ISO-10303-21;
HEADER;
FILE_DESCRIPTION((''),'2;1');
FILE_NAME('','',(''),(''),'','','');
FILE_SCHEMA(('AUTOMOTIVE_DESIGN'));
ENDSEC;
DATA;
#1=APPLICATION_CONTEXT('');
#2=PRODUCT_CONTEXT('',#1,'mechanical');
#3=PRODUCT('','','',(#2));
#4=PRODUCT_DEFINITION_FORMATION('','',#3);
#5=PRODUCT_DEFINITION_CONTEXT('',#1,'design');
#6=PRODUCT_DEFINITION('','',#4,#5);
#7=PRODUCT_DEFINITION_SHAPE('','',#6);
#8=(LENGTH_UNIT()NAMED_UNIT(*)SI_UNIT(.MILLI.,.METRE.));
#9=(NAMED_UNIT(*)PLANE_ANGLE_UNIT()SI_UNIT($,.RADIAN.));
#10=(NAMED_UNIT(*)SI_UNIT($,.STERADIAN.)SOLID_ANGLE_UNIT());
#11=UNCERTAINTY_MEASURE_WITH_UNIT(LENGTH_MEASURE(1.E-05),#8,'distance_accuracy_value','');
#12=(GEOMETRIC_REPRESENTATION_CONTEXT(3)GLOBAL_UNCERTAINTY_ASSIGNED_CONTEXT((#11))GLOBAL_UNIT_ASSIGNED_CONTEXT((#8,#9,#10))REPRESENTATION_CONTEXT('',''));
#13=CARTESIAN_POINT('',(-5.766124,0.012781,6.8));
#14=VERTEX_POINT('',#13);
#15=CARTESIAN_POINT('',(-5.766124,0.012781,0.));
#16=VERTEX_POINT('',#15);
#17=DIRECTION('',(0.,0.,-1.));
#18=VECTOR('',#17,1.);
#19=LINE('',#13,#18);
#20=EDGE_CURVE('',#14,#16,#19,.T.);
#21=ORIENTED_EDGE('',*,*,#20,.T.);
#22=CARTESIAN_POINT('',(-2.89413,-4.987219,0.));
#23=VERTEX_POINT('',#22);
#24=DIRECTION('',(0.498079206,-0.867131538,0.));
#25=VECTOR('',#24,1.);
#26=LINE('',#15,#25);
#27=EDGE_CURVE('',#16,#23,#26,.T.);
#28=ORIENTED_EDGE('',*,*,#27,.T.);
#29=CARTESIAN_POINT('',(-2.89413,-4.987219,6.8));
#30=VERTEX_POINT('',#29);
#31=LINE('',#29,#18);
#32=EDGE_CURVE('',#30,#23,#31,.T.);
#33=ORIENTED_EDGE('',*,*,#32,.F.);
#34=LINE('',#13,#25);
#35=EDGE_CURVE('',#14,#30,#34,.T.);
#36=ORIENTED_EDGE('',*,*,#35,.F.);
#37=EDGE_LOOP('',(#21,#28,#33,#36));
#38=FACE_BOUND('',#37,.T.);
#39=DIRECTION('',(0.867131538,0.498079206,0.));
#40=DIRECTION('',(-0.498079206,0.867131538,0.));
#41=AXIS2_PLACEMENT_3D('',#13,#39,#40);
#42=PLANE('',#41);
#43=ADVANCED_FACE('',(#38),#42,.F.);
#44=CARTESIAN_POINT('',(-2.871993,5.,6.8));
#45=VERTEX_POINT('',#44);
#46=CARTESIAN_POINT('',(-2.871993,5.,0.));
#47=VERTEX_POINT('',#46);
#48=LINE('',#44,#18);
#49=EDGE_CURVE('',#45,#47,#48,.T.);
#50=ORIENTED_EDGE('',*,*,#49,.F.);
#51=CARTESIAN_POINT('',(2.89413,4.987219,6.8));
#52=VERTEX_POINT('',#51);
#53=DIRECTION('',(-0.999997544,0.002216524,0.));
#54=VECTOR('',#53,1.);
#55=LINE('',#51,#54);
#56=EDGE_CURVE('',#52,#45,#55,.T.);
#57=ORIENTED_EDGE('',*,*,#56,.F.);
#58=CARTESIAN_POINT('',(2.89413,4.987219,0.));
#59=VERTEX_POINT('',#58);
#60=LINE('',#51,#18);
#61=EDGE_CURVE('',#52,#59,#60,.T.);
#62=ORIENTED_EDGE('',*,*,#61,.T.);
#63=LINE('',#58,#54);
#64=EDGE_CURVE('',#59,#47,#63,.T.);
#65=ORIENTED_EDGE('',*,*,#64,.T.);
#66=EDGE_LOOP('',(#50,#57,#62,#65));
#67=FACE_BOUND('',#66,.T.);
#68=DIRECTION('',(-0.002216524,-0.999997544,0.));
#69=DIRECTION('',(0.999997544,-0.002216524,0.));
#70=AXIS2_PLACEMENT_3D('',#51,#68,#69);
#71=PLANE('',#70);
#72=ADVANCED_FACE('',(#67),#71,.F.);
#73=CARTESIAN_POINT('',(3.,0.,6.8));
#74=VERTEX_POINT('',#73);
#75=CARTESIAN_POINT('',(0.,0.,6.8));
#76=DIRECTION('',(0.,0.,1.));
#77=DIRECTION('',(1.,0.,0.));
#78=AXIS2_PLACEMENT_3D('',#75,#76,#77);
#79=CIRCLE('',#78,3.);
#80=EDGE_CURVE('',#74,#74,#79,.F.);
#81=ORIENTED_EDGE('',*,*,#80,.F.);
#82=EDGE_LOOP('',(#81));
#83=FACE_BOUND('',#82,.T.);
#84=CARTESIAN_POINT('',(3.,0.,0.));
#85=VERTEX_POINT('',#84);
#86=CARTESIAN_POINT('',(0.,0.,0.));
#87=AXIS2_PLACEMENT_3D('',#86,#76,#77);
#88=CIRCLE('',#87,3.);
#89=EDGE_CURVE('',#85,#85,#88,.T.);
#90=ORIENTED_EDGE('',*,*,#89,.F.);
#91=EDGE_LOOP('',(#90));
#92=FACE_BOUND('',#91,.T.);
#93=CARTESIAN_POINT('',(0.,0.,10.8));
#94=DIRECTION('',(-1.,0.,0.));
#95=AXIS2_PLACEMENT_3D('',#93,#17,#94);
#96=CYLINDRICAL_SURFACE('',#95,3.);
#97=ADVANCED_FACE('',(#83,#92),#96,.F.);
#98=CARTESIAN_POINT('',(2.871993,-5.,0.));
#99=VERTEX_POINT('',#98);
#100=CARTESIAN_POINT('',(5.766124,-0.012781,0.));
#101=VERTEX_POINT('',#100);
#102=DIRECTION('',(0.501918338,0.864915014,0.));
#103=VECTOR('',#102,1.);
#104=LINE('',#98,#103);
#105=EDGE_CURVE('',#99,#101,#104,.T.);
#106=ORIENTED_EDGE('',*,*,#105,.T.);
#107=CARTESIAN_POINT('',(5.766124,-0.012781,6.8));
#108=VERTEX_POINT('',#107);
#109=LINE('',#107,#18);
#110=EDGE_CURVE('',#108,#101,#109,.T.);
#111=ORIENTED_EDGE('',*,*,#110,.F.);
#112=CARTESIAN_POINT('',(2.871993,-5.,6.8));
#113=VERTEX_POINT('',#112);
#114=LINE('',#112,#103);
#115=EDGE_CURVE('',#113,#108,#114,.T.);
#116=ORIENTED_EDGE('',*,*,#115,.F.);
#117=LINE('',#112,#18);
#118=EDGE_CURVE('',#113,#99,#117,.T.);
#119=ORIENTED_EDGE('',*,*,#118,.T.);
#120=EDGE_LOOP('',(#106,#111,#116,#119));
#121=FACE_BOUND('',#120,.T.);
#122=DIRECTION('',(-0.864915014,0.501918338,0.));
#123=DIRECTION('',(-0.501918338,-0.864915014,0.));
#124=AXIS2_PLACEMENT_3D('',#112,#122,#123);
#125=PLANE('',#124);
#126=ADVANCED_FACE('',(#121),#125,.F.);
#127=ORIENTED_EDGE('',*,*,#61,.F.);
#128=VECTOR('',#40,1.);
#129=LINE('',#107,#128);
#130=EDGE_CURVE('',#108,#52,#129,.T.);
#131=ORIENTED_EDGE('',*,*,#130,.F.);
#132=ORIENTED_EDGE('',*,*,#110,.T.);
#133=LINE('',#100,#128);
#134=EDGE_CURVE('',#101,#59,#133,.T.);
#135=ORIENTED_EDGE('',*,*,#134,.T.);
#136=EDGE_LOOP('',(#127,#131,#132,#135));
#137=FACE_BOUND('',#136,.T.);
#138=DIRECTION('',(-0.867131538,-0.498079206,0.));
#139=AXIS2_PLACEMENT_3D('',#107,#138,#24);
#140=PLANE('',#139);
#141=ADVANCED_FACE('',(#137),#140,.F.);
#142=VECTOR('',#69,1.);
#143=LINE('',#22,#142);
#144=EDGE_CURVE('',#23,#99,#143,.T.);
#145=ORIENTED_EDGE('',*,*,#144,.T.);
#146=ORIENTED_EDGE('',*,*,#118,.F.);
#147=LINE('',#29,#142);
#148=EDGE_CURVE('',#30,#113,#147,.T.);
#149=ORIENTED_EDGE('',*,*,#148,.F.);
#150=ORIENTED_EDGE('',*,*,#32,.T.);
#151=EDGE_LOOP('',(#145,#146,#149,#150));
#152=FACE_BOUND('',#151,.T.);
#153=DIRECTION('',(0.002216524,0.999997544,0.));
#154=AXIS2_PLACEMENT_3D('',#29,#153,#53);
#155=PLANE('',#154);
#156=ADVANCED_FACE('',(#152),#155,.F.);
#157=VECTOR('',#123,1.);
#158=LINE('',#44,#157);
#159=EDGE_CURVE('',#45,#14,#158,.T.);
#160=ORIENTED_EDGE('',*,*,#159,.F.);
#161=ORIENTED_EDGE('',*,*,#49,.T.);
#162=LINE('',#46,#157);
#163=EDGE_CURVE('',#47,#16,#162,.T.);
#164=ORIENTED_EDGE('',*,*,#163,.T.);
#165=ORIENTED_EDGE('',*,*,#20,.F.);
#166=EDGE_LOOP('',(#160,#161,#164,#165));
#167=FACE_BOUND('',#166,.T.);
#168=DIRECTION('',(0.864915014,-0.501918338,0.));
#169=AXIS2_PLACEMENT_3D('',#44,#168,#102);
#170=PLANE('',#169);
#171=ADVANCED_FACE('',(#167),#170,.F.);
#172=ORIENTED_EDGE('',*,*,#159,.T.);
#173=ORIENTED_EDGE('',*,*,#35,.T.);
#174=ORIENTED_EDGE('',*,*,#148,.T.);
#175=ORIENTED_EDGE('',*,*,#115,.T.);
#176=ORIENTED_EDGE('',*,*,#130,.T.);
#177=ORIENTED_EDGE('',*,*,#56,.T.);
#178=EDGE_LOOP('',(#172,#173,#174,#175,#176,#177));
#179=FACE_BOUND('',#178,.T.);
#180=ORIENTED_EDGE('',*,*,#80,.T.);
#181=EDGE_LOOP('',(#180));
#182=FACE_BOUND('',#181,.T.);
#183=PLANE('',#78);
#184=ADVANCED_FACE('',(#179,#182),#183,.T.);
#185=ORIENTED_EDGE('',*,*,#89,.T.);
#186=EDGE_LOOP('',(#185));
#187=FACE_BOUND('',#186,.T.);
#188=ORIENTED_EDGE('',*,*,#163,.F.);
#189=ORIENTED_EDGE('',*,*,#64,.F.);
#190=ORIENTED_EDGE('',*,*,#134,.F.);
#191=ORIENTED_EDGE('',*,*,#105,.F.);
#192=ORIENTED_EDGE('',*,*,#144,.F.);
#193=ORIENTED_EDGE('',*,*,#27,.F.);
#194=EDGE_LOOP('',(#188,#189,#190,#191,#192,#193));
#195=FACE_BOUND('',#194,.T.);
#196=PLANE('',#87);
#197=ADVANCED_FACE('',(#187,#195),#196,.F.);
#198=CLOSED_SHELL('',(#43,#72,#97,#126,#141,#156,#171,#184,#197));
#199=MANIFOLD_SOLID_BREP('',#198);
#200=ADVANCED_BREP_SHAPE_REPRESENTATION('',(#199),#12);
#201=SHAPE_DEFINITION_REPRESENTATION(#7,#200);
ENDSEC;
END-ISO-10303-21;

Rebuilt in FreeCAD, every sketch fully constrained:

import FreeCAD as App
import Part
import Sketcher
from FreeCAD import Vector


def add_polygon(sketch, points):
    """Adds a closed chain of lines whose ends are joined by coincident constraints."""
    first, n = sketch.GeometryCount, len(points)
    for a, b in zip(points, points[1:] + points[:1]):
        sketch.addGeometry(Part.LineSegment(App.Vector(*a, 0), App.Vector(*b, 0)), False)
    for i in range(n):
        sketch.addConstraint(Sketcher.Constraint("Coincident", first + i, 2, first + (i + 1) % n, 1))

doc = App.newDocument("Part")
body = doc.addObject("PartDesign::Body", "Body")

# Sketch on XY plane
sketch1 = doc.addObject("Sketcher::SketchObject", "Sketch")
body.addObject(sketch1)
sketch1.AttachmentSupport = (doc.XY_Plane, [""])
sketch1.MapMode = "FlatFace"
add_polygon(sketch1, [(-2.871993, 5), (-5.766124, 0.012781), (-2.89413, -4.987219), (2.871993, -5), (5.766124, -0.012781), (2.89413, 4.987219)])  # lines 0-5
sketch1.addConstraint([
    Sketcher.Constraint("Symmetric", 0, 2, 3, 2, -1, 1),
    Sketcher.Constraint("Symmetric", 1, 2, 4, 2, -1, 1),
    Sketcher.Constraint("Symmetric", 2, 2, 5, 2, -1, 1),
    Sketcher.Constraint("Equal", 0, 1),
    Sketcher.Constraint("Equal", 1, 2),
    Sketcher.Constraint("DistanceY", 2, 2, -1, 1, 5.0),
    Sketcher.Constraint("DistanceY", 1, 2, 0, 2, 5.0),
    Sketcher.Constraint("DistanceY", -1, 1, 0, 2, 0.012781),
    Sketcher.Constraint("DistanceX", 1, 2, -1, 1, 2.89413),
])
pad1 = doc.addObject("PartDesign::Pad", "Pad")
body.addObject(pad1)
pad1.Profile = sketch1
pad1.Length = 6.8

# Sketch on XY plane
sketch2 = doc.addObject("Sketcher::SketchObject", "Sketch001")
body.addObject(sketch2)
sketch2.AttachmentSupport = (doc.XY_Plane, [""])
sketch2.MapMode = "FlatFace"
sketch2.addGeometry(Part.Circle(Vector(0, 0, 0), Vector(0, 0, 1), 3), False)
sketch2.addConstraint([
    Sketcher.Constraint("Coincident", 0, 3, -1, 1),
    Sketcher.Constraint("Diameter", 0, 6.0),
])
pocket1 = doc.addObject("PartDesign::Pocket", "Pocket")
body.addObject(pocket1)
pocket1.Profile = sketch2
pocket1.Length = 10.8
pocket1.Reversed = True

doc.recompute()
